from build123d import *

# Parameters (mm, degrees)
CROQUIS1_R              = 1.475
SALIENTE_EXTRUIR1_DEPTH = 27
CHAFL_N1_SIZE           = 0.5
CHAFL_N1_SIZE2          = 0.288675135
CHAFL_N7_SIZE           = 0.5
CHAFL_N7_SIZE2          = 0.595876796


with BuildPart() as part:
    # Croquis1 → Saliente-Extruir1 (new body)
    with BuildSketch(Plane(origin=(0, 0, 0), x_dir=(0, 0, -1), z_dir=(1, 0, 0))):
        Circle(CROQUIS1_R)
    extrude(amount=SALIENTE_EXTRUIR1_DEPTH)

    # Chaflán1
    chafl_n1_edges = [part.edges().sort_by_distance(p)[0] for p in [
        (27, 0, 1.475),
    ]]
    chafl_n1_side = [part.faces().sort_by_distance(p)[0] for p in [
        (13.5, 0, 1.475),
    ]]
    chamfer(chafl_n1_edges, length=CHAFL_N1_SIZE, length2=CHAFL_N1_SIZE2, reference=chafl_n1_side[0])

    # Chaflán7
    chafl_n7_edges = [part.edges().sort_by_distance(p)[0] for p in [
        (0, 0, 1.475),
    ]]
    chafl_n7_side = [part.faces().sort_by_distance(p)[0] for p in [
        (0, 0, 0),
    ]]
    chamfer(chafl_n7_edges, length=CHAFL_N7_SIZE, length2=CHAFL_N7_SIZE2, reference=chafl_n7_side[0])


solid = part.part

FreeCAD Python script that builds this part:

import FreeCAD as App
import Part
import Sketcher
from FreeCAD import Vector


def edges_at(feature, points):
    """Names of the edges that pass closest to the given points."""
    edges = feature.Shape.Edges
    near = lambda p: min(range(len(edges)), key=lambda i: edges[i].distToShape(Part.Vertex(*p))[0])
    return sorted({f"Edge{near(p) + 1}" for p in points})

doc = App.newDocument("Part")
body = doc.addObject("PartDesign::Body", "Body")

# Sketch on YZ plane
sketch1 = doc.addObject("Sketcher::SketchObject", "Sketch")
body.addObject(sketch1)
sketch1.AttachmentSupport = (doc.YZ_Plane, [""])
sketch1.MapMode = "FlatFace"
sketch1.addGeometry(Part.Circle(Vector(0, 0, 0), Vector(0, 0, 1), 1.5), False)
sketch1.addConstraint([
    Sketcher.Constraint("Coincident", 0, 3, -1, 1),
    Sketcher.Constraint("Diameter", 0, 2.95),
])
pad1 = doc.addObject("PartDesign::Pad", "Pad")
body.addObject(pad1)
pad1.Profile = sketch1
pad1.Length = 27
doc.recompute()

chamfer = doc.addObject("PartDesign::Chamfer", "Chamfer")
body.addObject(chamfer)
chamfer.Base = (pad1, edges_at(pad1, [(27, 0, 1.475)]))
chamfer.ChamferType = "Two distances"
chamfer.Size = 0.5
chamfer.Size2 = 0.288675
doc.recompute()

chamfer2 = doc.addObject("PartDesign::Chamfer", "Chamfer001")
body.addObject(chamfer2)
chamfer2.Base = (chamfer, edges_at(chamfer, [(0, 0, 1.475)]))
chamfer2.ChamferType = "Two distances"
chamfer2.Size = 0.5
chamfer2.Size2 = 0.595877
chamfer2.FlipDirection = True

doc.recompute()
